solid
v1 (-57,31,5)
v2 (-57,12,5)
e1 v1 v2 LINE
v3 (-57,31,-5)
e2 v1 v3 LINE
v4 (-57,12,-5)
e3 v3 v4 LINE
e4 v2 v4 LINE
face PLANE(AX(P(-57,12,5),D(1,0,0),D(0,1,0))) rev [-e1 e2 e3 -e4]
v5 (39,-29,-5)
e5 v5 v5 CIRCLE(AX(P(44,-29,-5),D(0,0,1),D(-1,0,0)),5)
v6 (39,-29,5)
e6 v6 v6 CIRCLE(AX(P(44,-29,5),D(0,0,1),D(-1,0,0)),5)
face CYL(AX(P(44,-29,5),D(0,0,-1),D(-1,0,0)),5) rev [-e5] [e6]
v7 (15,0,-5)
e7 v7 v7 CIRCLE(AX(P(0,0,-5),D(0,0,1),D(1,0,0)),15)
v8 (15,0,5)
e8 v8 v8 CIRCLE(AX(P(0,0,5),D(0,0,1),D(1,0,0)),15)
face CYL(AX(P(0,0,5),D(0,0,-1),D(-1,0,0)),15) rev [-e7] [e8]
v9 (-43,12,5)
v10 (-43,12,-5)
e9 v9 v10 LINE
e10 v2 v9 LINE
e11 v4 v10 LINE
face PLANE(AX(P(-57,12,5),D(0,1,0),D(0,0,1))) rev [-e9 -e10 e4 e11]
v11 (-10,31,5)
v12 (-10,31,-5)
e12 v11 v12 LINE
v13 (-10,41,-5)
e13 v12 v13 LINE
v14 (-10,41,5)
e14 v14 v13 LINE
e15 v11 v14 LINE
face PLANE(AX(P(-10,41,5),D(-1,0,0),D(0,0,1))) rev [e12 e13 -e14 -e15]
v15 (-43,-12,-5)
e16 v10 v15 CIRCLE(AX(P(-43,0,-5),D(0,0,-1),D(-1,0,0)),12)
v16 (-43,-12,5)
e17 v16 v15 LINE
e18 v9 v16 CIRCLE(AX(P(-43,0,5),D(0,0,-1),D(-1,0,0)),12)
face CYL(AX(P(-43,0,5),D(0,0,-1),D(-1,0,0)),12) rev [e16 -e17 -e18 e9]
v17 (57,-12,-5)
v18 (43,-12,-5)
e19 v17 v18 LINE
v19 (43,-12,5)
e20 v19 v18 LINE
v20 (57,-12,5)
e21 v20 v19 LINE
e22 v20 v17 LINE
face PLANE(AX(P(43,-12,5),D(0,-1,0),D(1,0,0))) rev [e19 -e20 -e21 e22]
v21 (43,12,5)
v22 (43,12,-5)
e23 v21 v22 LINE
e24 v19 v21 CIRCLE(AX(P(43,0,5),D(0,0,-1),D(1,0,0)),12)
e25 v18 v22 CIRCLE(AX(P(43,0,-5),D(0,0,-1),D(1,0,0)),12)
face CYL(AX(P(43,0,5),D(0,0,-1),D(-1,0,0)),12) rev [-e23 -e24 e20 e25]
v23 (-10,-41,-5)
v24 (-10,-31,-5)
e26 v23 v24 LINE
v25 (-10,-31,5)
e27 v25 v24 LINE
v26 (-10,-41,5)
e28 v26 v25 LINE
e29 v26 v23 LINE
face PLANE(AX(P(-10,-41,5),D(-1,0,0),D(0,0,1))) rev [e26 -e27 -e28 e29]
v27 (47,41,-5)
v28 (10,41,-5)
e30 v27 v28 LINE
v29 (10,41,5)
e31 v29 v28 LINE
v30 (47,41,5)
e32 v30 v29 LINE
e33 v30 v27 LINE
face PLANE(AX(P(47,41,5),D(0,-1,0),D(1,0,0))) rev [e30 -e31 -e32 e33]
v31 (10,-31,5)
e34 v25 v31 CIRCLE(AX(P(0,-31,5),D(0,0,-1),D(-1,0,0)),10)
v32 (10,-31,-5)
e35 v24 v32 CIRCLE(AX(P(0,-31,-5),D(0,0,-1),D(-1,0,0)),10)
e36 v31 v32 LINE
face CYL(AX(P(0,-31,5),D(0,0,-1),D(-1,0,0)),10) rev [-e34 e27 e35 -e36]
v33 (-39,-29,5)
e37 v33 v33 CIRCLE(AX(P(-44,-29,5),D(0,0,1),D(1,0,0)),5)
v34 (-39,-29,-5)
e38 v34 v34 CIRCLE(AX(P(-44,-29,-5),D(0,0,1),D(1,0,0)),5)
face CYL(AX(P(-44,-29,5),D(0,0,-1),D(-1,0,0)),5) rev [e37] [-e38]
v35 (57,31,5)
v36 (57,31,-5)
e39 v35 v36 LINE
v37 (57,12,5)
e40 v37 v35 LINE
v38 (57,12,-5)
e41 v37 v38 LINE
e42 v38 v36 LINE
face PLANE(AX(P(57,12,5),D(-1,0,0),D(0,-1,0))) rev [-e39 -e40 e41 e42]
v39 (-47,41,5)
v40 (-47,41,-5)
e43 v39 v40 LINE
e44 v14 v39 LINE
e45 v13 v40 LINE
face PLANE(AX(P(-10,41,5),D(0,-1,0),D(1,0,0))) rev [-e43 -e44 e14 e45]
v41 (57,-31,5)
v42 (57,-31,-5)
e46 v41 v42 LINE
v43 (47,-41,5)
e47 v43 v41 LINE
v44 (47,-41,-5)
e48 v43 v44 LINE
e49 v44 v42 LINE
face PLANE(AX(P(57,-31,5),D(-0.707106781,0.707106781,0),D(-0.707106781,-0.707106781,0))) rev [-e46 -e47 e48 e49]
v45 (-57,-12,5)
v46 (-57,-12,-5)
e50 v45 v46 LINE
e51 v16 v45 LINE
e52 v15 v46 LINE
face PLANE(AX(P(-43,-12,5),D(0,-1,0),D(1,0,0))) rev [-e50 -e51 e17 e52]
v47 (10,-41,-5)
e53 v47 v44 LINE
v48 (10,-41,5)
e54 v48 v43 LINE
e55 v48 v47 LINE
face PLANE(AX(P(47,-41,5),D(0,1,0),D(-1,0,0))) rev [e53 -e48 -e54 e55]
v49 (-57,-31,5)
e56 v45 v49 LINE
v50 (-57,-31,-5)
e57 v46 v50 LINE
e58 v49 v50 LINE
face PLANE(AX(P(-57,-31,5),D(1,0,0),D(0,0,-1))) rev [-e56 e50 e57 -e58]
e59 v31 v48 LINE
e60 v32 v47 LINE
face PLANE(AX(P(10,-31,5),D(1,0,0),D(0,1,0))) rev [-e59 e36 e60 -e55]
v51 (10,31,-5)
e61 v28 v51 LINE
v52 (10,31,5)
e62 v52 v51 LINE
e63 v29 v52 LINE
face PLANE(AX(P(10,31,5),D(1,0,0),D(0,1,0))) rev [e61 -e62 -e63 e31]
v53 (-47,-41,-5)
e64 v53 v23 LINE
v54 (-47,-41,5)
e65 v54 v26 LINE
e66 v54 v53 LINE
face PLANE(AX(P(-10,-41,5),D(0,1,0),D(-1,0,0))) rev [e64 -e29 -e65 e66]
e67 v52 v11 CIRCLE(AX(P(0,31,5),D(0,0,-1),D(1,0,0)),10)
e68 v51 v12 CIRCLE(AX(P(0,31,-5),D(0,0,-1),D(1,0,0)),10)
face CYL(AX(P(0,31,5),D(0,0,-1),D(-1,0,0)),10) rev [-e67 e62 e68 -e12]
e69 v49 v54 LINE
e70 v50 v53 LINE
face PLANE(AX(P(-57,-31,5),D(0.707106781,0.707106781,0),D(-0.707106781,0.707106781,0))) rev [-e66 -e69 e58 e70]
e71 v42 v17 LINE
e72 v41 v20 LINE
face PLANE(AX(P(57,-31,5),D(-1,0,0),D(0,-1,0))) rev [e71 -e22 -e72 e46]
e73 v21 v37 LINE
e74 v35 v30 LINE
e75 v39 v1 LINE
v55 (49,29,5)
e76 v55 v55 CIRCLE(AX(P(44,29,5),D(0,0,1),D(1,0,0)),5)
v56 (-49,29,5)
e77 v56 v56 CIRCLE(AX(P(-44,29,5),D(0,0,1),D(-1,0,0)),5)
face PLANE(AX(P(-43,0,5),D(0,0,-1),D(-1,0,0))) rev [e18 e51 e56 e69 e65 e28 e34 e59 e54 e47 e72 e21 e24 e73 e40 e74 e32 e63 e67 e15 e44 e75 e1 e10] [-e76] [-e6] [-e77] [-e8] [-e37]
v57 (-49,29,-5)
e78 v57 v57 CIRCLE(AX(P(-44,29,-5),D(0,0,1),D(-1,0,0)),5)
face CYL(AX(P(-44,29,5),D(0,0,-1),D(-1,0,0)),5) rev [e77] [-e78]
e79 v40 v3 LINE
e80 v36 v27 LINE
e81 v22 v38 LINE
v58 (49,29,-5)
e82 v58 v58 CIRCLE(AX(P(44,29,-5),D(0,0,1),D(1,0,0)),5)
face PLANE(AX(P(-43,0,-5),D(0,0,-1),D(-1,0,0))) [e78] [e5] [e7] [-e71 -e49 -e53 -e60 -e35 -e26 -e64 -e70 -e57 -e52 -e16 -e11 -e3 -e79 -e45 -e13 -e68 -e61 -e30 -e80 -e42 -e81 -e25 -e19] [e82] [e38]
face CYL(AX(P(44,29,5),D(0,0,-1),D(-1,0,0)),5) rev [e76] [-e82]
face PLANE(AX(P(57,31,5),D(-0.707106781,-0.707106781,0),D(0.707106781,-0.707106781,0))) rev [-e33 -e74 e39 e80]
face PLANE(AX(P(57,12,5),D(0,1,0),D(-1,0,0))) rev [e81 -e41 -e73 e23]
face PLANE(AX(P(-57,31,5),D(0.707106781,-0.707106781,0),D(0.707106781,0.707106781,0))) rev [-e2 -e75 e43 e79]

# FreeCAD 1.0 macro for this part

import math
import FreeCAD as App
import Part
import Sketcher
Q = App.Units.Quantity

doc = App.newDocument("Part")
body = doc.addObject("PartDesign::Body", "Body")

sketch1 = doc.addObject("Sketcher::SketchObject", "Sketch")
body.addObject(sketch1)
sketch1.AttachmentSupport = (doc.XY_Plane, [""])
sketch1.MapMode = "FlatFace"
sketch1.addGeometry([
    Part.LineSegment(App.Vector(-57, -31, 0), App.Vector(-47, -41, 0)),
    Part.LineSegment(App.Vector(-47, -41, 0), App.Vector(-10, -41, 0)),
    Part.LineSegment(App.Vector(-10, -41, 0), App.Vector(-10, -31, 0)),
    Part.ArcOfCircle(Part.Circle(App.Vector(0, -31, 0), App.Vector(0, 0, 1), 10), math.radians(0), math.radians(180)),
    Part.LineSegment(App.Vector(10, -31, 0), App.Vector(10, -41, 0)),
    Part.LineSegment(App.Vector(10, -41, 0), App.Vector(47, -41, 0)),
    Part.LineSegment(App.Vector(47, -41, 0), App.Vector(57, -31, 0)),
    Part.LineSegment(App.Vector(57, -31, 0), App.Vector(57, -12, 0)),
    Part.LineSegment(App.Vector(57, -12, 0), App.Vector(43, -12, 0)),
    Part.ArcOfCircle(Part.Circle(App.Vector(43, 0, 0), App.Vector(0, 0, 1), 12), math.radians(90), math.radians(270)),
    Part.LineSegment(App.Vector(43, 12, 0), App.Vector(57, 12, 0)),
    Part.LineSegment(App.Vector(57, 12, 0), App.Vector(57, 31, 0)),
    Part.LineSegment(App.Vector(57, 31, 0), App.Vector(47, 41, 0)),
    Part.LineSegment(App.Vector(47, 41, 0), App.Vector(10, 41, 0)),
    Part.LineSegment(App.Vector(10, 41, 0), App.Vector(10, 31, 0)),
    Part.ArcOfCircle(Part.Circle(App.Vector(0, 31, 0), App.Vector(0, 0, 1), 10), math.radians(180), math.radians(360)),
    Part.LineSegment(App.Vector(-10, 31, 0), App.Vector(-10, 41, 0)),
    Part.LineSegment(App.Vector(-10, 41, 0), App.Vector(-47, 41, 0)),
    Part.LineSegment(App.Vector(-47, 41, 0), App.Vector(-57, 31, 0)),
    Part.LineSegment(App.Vector(-57, 31, 0), App.Vector(-57, 12, 0)),
    Part.LineSegment(App.Vector(-57, 12, 0), App.Vector(-43, 12, 0)),
    Part.ArcOfCircle(Part.Circle(App.Vector(-43, 0, 0), App.Vector(0, 0, 1), 12), math.radians(-90), math.radians(90)),
    Part.LineSegment(App.Vector(-43, -12, 0), App.Vector(-57, -12, 0)),
    Part.LineSegment(App.Vector(-57, -12, 0), App.Vector(-57, -31, 0)),
    Part.Circle(App.Vector(-44, -29, 0), App.Vector(0, 0, 1), 5),
    Part.Circle(App.Vector(44, -29, 0), App.Vector(0, 0, 1), 5),
    Part.Circle(App.Vector(0, 0, 0), App.Vector(0, 0, 1), 15),
    Part.Circle(App.Vector(-44, 29, 0), App.Vector(0, 0, 1), 5),
    Part.Circle(App.Vector(44, 29, 0), App.Vector(0, 0, 1), 5),
], False)
sketch1.addConstraint([
    Sketcher.Constraint("Coincident", 0, 2, 1, 1),
    Sketcher.Constraint("Coincident", 1, 2, 2, 1),
    Sketcher.Constraint("Tangent", 2, 2, 3, 2),
    Sketcher.Constraint("Tangent", 3, 1, 4, 1),
    Sketcher.Constraint("Coincident", 4, 2, 5, 1),
    Sketcher.Constraint("Coincident", 5, 2, 6, 1),
    Sketcher.Constraint("Coincident", 6, 2, 7, 1),
    Sketcher.Constraint("Coincident", 7, 2, 8, 1),
    Sketcher.Constraint("Tangent", 8, 2, 9, 2),
    Sketcher.Constraint("Tangent", 9, 1, 10, 1),
    Sketcher.Constraint("Coincident", 10, 2, 11, 1),
    Sketcher.Constraint("Coincident", 11, 2, 12, 1),
    Sketcher.Constraint("Coincident", 12, 2, 13, 1),
    Sketcher.Constraint("Coincident", 13, 2, 14, 1),
    Sketcher.Constraint("Tangent", 14, 2, 15, 2),
    Sketcher.Constraint("Tangent", 15, 1, 16, 1),
    Sketcher.Constraint("Coincident", 16, 2, 17, 1),
    Sketcher.Constraint("Coincident", 17, 2, 18, 1),
    Sketcher.Constraint("Coincident", 18, 2, 19, 1),
    Sketcher.Constraint("Coincident", 19, 2, 20, 1),
    Sketcher.Constraint("Tangent", 20, 2, 21, 2),
    Sketcher.Constraint("Tangent", 21, 1, 22, 1),
    Sketcher.Constraint("Coincident", 22, 2, 23, 1),
    Sketcher.Constraint("Coincident", 23, 2, 0, 1),
    Sketcher.Constraint("Horizontal", 1),
    Sketcher.Constraint("Vertical", 2),
    Sketcher.Constraint("Vertical", 4),
    Sketcher.Constraint("Horizontal", 5),
    Sketcher.Constraint("Vertical", 7),
    Sketcher.Constraint("Horizontal", 8),
    Sketcher.Constraint("Horizontal", 10),
    Sketcher.Constraint("Vertical", 11),
    Sketcher.Constraint("Horizontal", 13),
    Sketcher.Constraint("Vertical", 14),
    Sketcher.Constraint("Vertical", 16),
    Sketcher.Constraint("Horizontal", 17),
    Sketcher.Constraint("Vertical", 19),
    Sketcher.Constraint("Horizontal", 20),
    Sketcher.Constraint("Horizontal", 22),
    Sketcher.Constraint("Vertical", 23),
    Sketcher.Constraint("Coincident", 26, 3, -1, 1),
    Sketcher.Constraint("Equal", 3, 15),
    Sketcher.Constraint("Equal", 9, 21),
    Sketcher.Constraint("Equal", 24, 25),
    Sketcher.Constraint("Equal", 25, 27),
    Sketcher.Constraint("Equal", 27, 28),
    Sketcher.Constraint("Symmetric", 3, 3, 15, 3, -1, 1),
    Sketcher.Constraint("Symmetric", 9, 3, 21, 3, -1, 1),
    Sketcher.Constraint("Symmetric", 25, 3, 27, 3, -1, 1),
    Sketcher.Constraint("Symmetric", 24, 3, 28, 3, -1, 1),
    Sketcher.Constraint("Symmetric", 0, 2, 12, 2, -1, 1),
    Sketcher.Constraint("Symmetric", 5, 2, 17, 2, -1, 1),
    Sketcher.Constraint("Symmetric", 6, 2, 18, 2, -1, 1),
    Sketcher.Constraint("Symmetric", 11, 2, 23, 2, -1, 1),
    Sketcher.Constraint("Symmetric", 24, 3, 25, 3, -2),
    Sketcher.Constraint("Symmetric", 1, 2, 4, 2, -2),
    Sketcher.Constraint("Symmetric", 11, 2, 18, 2, -2),
    Sketcher.Constraint("PointOnObject", 9, 3, -1),
    Sketcher.Constraint("Perpendicular", 0, 6),
    Sketcher.Constraint("Horizontal", 3, 1, 6, 2),
    Sketcher.Constraint("Vertical", 5, 2, 12, 2),
    Sketcher.Constraint("Diameter", 24, Q("10 mm")),
    Sketcher.Constraint("Diameter", 26, Q("30 mm")),
    Sketcher.Constraint("Radius", 3, Q("10 mm")),
    Sketcher.Constraint("Radius", 9, Q("12 mm")),
    Sketcher.Constraint("DistanceX", 1, 1, 1, 2, Q("37 mm")),
    Sketcher.Constraint("DistanceX", 8, 2, 8, 1, Q("14 mm")),
    Sketcher.Constraint("DistanceY", 2, 1, 2, 2, Q("10 mm")),
    Sketcher.Constraint("DistanceY", 7, 1, 7, 2, Q("19 mm")),
    Sketcher.Constraint("DistanceX", 24, 3, -1, 1, Q("44 mm")),
    Sketcher.Constraint("DistanceY", 24, 3, -1, 1, Q("29 mm")),
])
pad1 = doc.addObject("PartDesign::Pad", "Pad")
body.addObject(pad1)
pad1.Profile = sketch1
pad1.Length = 10
pad1.Midplane = True

doc.recompute()
